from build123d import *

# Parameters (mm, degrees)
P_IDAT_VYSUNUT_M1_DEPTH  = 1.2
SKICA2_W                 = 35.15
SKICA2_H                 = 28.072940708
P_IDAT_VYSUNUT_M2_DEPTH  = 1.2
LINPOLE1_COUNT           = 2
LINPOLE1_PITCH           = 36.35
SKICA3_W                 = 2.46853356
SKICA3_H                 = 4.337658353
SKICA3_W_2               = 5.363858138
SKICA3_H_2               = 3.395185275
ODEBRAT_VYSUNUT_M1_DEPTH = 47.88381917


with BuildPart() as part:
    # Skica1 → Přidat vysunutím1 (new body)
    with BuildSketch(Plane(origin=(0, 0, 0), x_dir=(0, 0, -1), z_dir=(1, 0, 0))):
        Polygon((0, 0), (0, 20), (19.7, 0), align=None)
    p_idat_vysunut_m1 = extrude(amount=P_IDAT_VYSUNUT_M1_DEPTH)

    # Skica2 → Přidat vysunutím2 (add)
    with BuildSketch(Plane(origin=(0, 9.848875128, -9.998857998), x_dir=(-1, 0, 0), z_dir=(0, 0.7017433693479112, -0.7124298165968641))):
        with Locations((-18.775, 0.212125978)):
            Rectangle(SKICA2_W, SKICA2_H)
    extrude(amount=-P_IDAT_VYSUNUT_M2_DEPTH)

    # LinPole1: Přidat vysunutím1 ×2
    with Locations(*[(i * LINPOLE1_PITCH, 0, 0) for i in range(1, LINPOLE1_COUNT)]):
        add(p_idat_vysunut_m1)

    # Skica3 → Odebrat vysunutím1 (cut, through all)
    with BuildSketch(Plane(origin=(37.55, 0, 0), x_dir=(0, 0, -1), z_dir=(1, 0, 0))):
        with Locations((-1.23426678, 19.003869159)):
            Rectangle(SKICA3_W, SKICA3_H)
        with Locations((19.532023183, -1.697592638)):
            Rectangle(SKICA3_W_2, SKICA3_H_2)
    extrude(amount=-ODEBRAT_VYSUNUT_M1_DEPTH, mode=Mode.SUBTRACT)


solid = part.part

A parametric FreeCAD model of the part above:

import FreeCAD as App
import Part
import Sketcher

doc = App.newDocument("Part")
body = doc.addObject("PartDesign::Body", "Body")

sketch1 = body.newObject("Sketcher::SketchObject", "Sketch")
sketch1.AttachmentSupport = (doc.getObject("YZ_Plane"), [""])
sketch1.MapMode = "FlatFace"
sketch1.addGeometry([
    Part.LineSegment(App.Vector(20, 0, 0), App.Vector(0, 0, 0)),
    Part.LineSegment(App.Vector(0, 0, 0), App.Vector(0, -20, 0)),
    Part.LineSegment(App.Vector(0, -20, 0), App.Vector(20, 0, 0)),
], False)
sketch1.addConstraint([
    Sketcher.Constraint("Coincident", 0, 2, 1, 1),
    Sketcher.Constraint("Coincident", 1, 2, 2, 1),
    Sketcher.Constraint("Coincident", 2, 2, 0, 1),
    Sketcher.Constraint("Horizontal", 0),
    Sketcher.Constraint("Vertical", 1),
    Sketcher.Constraint("Coincident", 0, 2, -1, 1),
    Sketcher.Constraint("DistanceX", 0, 2, 0, 1, 20.0),
    Sketcher.Constraint("DistanceY", 1, 2, 1, 1, 19.7),
])
pad1 = body.newObject("PartDesign::Pad", "Pad")
pad1.Profile = sketch1
pad1.Length = 1.2

sketch2 = body.newObject("Sketcher::SketchObject", "Sketch001")
sketch2.Placement = App.Placement(App.Vector(0, 9.848875, -9.998858), App.Rotation(App.Vector(-1, 0, 0), App.Vector(0, 0.712429817, 0.701743369), App.Vector(0, 0.701743369, -0.712429817), "ZXY"))
sketch2.addGeometry([
    Part.LineSegment(App.Vector(-36, 14, 0), App.Vector(-36, -14, 0)),
    Part.LineSegment(App.Vector(-36, -14, 0), App.Vector(-1, -14, 0)),
    Part.LineSegment(App.Vector(-1, -14, 0), App.Vector(-1, 14, 0)),
    Part.LineSegment(App.Vector(-1, 14, 0), App.Vector(-36, 14, 0)),
], False)
sketch2.addConstraint([
    Sketcher.Constraint("Coincident", 0, 2, 1, 1),
    Sketcher.Constraint("Coincident", 1, 2, 2, 1),
    Sketcher.Constraint("Coincident", 2, 2, 3, 1),
    Sketcher.Constraint("Coincident", 3, 2, 0, 1),
    Sketcher.Constraint("Vertical", 0),
    Sketcher.Constraint("Horizontal", 1),
    Sketcher.Constraint("Vertical", 2),
    Sketcher.Constraint("Horizontal", 3),
    Sketcher.Constraint("DistanceX", 1, 1, 1, 2, 35.15),
    Sketcher.Constraint("DistanceX", 1, 2, -1, 1, 1.2),
    Sketcher.Constraint("DistanceY", 0, 2, 0, 1, 28.072941),
    Sketcher.Constraint("DistanceY", 0, 2, -1, 1, 13.824344),
])
pad2 = body.newObject("PartDesign::Pad", "Pad001")
pad2.Profile = sketch2
pad2.Length = 1.2
pad2.Reversed = True
doc.recompute()

linearpattern = body.newObject("PartDesign::LinearPattern", "LinearPattern")
linearpattern.Originals = [pad1]
linearpattern.Direction = (doc.getObject("X_Axis"), [""])
linearpattern.Mode = "offset"
linearpattern.Offset = 36.35
linearpattern.Occurrences = 2
body.Tip = linearpattern

sketch3 = body.newObject("Sketcher::SketchObject", "Sketch002")
sketch3.AttachmentSupport = (doc.getObject("YZ_Plane"), [""])
sketch3.MapMode = "FlatFace"
sketch3.AttachmentOffset = App.Placement(App.Vector(0, 0, 37.55), App.Rotation())
sketch3.addGeometry([
    Part.LineSegment(App.Vector(21.2, 2.5, 0), App.Vector(16.8, 2.5, 0)),
    Part.LineSegment(App.Vector(16.8, 2.5, 0), App.Vector(16.8, 0, 0)),
    Part.LineSegment(App.Vector(16.8, 0, 0), App.Vector(21.2, 0, 0)),
    Part.LineSegment(App.Vector(21.2, 0, 0), App.Vector(21.2, 2.5, 0)),
    Part.LineSegment(App.Vector(0, -16.9, 0), App.Vector(-3.4, -16.9, 0)),
    Part.LineSegment(App.Vector(-3.4, -16.9, 0), App.Vector(-3.4, -22.2, 0)),
    Part.LineSegment(App.Vector(-3.4, -22.2, 0), App.Vector(0, -22.2, 0)),
    Part.LineSegment(App.Vector(0, -22.2, 0), App.Vector(0, -16.9, 0)),
], False)
sketch3.addConstraint([
    Sketcher.Constraint("Coincident", 0, 2, 1, 1),
    Sketcher.Constraint("Coincident", 1, 2, 2, 1),
    Sketcher.Constraint("Coincident", 2, 2, 3, 1),
    Sketcher.Constraint("Coincident", 3, 2, 0, 1),
    Sketcher.Constraint("Coincident", 4, 2, 5, 1),
    Sketcher.Constraint("Coincident", 5, 2, 6, 1),
    Sketcher.Constraint("Coincident", 6, 2, 7, 1),
    Sketcher.Constraint("Coincident", 7, 2, 4, 1),
    Sketcher.Constraint("Horizontal", 0),
    Sketcher.Constraint("Vertical", 1),
    Sketcher.Constraint("Horizontal", 2),
    Sketcher.Constraint("Vertical", 3),
    Sketcher.Constraint("Horizontal", 4),
    Sketcher.Constraint("Vertical", 5),
    Sketcher.Constraint("Horizontal", 6),
    Sketcher.Constraint("Vertical", 7),
    Sketcher.Constraint("PointOnObject", 1, 2, -1),
    Sketcher.Constraint("PointOnObject", 6, 2, -2),
    Sketcher.Constraint("DistanceX", 0, 2, 0, 1, 4.337658),
    Sketcher.Constraint("DistanceY", 5, 2, 5, 1, 5.363858),
    Sketcher.Constraint("DistanceX", -1, 1, 2, 2, 21.172698),
    Sketcher.Constraint("DistanceX", 4, 2, 4, 1, 3.395185),
    Sketcher.Constraint("DistanceY", 1, 2, 1, 1, 2.468534),
    Sketcher.Constraint("DistanceY", 4, 2, -1, 1, 16.850094),
])
pocket1 = body.newObject("PartDesign::Pocket", "Pocket")
pocket1.Profile = sketch3
pocket1.Type = "ThroughAll"

doc.recompute()
